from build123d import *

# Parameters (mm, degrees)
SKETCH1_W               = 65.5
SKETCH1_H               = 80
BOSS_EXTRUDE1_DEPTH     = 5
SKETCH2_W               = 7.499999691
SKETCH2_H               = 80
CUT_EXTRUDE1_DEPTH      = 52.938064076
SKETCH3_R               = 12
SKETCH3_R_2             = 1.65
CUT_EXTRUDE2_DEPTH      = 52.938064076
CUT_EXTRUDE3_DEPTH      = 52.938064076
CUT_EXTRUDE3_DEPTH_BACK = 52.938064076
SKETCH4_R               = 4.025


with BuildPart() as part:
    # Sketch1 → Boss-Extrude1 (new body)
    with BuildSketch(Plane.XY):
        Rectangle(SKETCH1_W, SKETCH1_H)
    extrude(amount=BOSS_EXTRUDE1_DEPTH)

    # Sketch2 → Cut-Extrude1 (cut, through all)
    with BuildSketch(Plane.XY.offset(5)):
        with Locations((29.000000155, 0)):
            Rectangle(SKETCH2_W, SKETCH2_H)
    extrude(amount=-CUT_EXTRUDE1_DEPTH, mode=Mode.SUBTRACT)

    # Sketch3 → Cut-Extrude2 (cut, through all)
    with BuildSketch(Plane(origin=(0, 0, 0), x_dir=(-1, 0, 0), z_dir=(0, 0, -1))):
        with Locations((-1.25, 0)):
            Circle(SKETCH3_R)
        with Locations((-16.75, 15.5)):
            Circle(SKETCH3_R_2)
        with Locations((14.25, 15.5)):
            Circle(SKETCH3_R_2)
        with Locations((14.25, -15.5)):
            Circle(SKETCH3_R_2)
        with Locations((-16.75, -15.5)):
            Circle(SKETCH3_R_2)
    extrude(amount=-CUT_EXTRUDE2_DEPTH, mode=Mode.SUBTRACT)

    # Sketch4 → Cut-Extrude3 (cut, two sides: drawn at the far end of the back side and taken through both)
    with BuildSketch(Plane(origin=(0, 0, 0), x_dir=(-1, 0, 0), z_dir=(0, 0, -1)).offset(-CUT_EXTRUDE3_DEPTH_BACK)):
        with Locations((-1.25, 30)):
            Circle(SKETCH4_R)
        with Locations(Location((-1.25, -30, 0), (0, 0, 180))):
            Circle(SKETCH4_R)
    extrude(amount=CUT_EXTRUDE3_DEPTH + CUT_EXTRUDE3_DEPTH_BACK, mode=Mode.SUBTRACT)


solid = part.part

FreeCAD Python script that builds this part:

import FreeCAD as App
import Part
import Sketcher

V = App.Vector
Q = App.Units.Quantity


def add_polygon(sketch, points):
    """Adds a closed chain of lines whose ends are joined by coincident constraints."""
    first, n = sketch.GeometryCount, len(points)
    for a, b in zip(points, points[1:] + points[:1]):
        sketch.addGeometry(Part.LineSegment(App.Vector(*a, 0), App.Vector(*b, 0)), False)
    for i in range(n):
        sketch.addConstraint(Sketcher.Constraint("Coincident", first + i, 2, first + (i + 1) % n, 1))

doc = App.newDocument("Part")
params = doc.addObject("Spreadsheet::Sheet", "Params")
for row, (alias, value) in enumerate([
    ("sketch1_height", "80 mm"),
    ("sketch1_width", "65.5 mm"),
    ("pad1_length", "5 mm"),
    ("sketch2_height", "80 mm"),
    ("sketch2_width", "7.5 mm"),
    ("sketch3_diameter", "24 mm"),
    ("sketch3_diameter2", "3.3 mm"),
    ("sketch4_diameter", "8.05 mm"),
], start=1):
    params.set(f"A{row}", alias)
    params.set(f"B{row}", "=" + value)
    params.setAlias(f"B{row}", alias)

body = doc.addObject("PartDesign::Body", "Body")

# Sketch on XY plane
sketch1 = body.newObject("Sketcher::SketchObject", "Sketch")
sketch1.AttachmentSupport = (doc.getObject("XY_Plane"), [""])
sketch1.MapMode = "FlatFace"
add_polygon(sketch1, [(-32.75, 40), (-32.75, -40), (32.75, -40), (32.75, 40)])  # lines 0-3
sketch1.addConstraint([
    Sketcher.Constraint("Vertical", 0),
    Sketcher.Constraint("Horizontal", 1),
    Sketcher.Constraint("Vertical", 2),
    Sketcher.Constraint("Horizontal", 3),
    Sketcher.Constraint("Symmetric", 0, 2, 2, 2, -1, 1),
    Sketcher.Constraint("DistanceY", 0, 2, 0, 1, Q("80 mm")),
    Sketcher.Constraint("DistanceX", 1, 1, 1, 2, Q("65.5 mm")),
])
sketch1.setExpression("Constraints[9]", "Params.sketch1_height")
sketch1.setExpression("Constraints[10]", "Params.sketch1_width")
pad1 = body.newObject("PartDesign::Pad", "Pad")
pad1.Profile = sketch1
pad1.setExpression("Length", "Params.pad1_length")

# Sketch on XY plane
sketch2 = body.newObject("Sketcher::SketchObject", "Sketch001")
sketch2.AttachmentSupport = (doc.getObject("XY_Plane"), [""])
sketch2.MapMode = "FlatFace"
sketch2.AttachmentOffset = App.Placement(V(0, 0, 5), App.Rotation())
add_polygon(sketch2, [(25.25, 40), (25.25, -40), (32.75, -40), (32.75, 40)])  # lines 0-3
sketch2.addConstraint([
    Sketcher.Constraint("Vertical", 0),
    Sketcher.Constraint("Horizontal", 1),
    Sketcher.Constraint("Vertical", 2),
    Sketcher.Constraint("Horizontal", 3),
    Sketcher.Constraint("DistanceY", 0, 2, 0, 1, Q("80 mm")),
    Sketcher.Constraint("DistanceX", 1, 1, 1, 2, Q("7.5 mm")),
    Sketcher.Constraint("DistanceY", 0, 2, -1, 1, Q("40 mm")),
    Sketcher.Constraint("DistanceX", -1, 1, 0, 2, Q("25.25 mm")),
])
sketch2.setExpression("Constraints[8]", "Params.sketch2_height")
sketch2.setExpression("Constraints[9]", "Params.sketch2_width")
pocket1 = body.newObject("PartDesign::Pocket", "Pocket")
pocket1.Profile = sketch2
pocket1.Type = "ThroughAll"

# Sketch on XY plane
sketch3 = body.newObject("Sketcher::SketchObject", "Sketch002")
sketch3.AttachmentSupport = (doc.getObject("XY_Plane"), [""])
sketch3.MapMode = "FlatFace"
sketch3.addGeometry([
    Part.Circle(V(1.25, 0, 0), V(0, 0, 1), 12),  # 0
    Part.Circle(V(16.75, 15.5, 0), V(0, 0, 1), 1.65),  # 1
    Part.Circle(V(-14.25, 15.5, 0), V(0, 0, 1), 1.65),  # 2
    Part.Circle(V(-14.25, -15.5, 0), V(0, 0, 1), 1.65),  # 3
    Part.Circle(V(16.75, -15.5, 0), V(0, 0, 1), 1.65),  # 4
], False)
sketch3.addConstraint([
    Sketcher.Constraint("Equal", 1, 2),
    Sketcher.Constraint("Equal", 2, 3),
    Sketcher.Constraint("Equal", 3, 4),
    Sketcher.Constraint("Symmetric", 2, 3, 3, 3, -1),
    Sketcher.Constraint("Symmetric", 1, 3, 4, 3, -1),
    Sketcher.Constraint("PointOnObject", 0, 3, -1),
    Sketcher.Constraint("Horizontal", 1, 3, 2, 3),
    Sketcher.Constraint("Diameter", 0, Q("24 mm")),
    Sketcher.Constraint("Diameter", 1, Q("3.3 mm")),
    Sketcher.Constraint("DistanceX", 2, 3, 1, 3, Q("31 mm")),
    Sketcher.Constraint("DistanceY", 3, 3, 2, 3, Q("31 mm")),
    Sketcher.Constraint("DistanceX", 0, 3, 1, 3, Q("15.5 mm")),
    Sketcher.Constraint("DistanceX", -1, 1, 0, 3, Q("1.25 mm")),
])
sketch3.setExpression("Constraints[7]", "Params.sketch3_diameter")
sketch3.setExpression("Constraints[8]", "Params.sketch3_diameter2")
pocket2 = body.newObject("PartDesign::Pocket", "Pocket001")
pocket2.Profile = sketch3
pocket2.Type = "ThroughAll"
pocket2.Reversed = True

# Sketch on XY plane
sketch4 = body.newObject("Sketcher::SketchObject", "Sketch003")
sketch4.AttachmentSupport = (doc.getObject("XY_Plane"), [""])
sketch4.MapMode = "FlatFace"
sketch4.addGeometry([
    Part.Circle(V(1.25, 30, 0), V(0, 0, 1), 4.025),
    Part.Circle(V(1.25, -30, 0), V(0, 0, 1), 4.025),
], False)
sketch4.addConstraint([
    Sketcher.Constraint("Equal", 0, 1),
    Sketcher.Constraint("Symmetric", 0, 3, 1, 3, -1),
    Sketcher.Constraint("Diameter", 0, Q("8.05 mm")),
    Sketcher.Constraint("DistanceY", -1, 1, 0, 3, Q("30 mm")),
    Sketcher.Constraint("DistanceX", -1, 1, 0, 3, Q("1.25 mm")),
])
sketch4.setExpression("Constraints[2]", "Params.sketch4_diameter")
pocket3 = body.newObject("PartDesign::Pocket", "Pocket002")
pocket3.Profile = sketch4
pocket3.Type = "ThroughAll"
pocket3.Midplane = True

doc.recompute()
